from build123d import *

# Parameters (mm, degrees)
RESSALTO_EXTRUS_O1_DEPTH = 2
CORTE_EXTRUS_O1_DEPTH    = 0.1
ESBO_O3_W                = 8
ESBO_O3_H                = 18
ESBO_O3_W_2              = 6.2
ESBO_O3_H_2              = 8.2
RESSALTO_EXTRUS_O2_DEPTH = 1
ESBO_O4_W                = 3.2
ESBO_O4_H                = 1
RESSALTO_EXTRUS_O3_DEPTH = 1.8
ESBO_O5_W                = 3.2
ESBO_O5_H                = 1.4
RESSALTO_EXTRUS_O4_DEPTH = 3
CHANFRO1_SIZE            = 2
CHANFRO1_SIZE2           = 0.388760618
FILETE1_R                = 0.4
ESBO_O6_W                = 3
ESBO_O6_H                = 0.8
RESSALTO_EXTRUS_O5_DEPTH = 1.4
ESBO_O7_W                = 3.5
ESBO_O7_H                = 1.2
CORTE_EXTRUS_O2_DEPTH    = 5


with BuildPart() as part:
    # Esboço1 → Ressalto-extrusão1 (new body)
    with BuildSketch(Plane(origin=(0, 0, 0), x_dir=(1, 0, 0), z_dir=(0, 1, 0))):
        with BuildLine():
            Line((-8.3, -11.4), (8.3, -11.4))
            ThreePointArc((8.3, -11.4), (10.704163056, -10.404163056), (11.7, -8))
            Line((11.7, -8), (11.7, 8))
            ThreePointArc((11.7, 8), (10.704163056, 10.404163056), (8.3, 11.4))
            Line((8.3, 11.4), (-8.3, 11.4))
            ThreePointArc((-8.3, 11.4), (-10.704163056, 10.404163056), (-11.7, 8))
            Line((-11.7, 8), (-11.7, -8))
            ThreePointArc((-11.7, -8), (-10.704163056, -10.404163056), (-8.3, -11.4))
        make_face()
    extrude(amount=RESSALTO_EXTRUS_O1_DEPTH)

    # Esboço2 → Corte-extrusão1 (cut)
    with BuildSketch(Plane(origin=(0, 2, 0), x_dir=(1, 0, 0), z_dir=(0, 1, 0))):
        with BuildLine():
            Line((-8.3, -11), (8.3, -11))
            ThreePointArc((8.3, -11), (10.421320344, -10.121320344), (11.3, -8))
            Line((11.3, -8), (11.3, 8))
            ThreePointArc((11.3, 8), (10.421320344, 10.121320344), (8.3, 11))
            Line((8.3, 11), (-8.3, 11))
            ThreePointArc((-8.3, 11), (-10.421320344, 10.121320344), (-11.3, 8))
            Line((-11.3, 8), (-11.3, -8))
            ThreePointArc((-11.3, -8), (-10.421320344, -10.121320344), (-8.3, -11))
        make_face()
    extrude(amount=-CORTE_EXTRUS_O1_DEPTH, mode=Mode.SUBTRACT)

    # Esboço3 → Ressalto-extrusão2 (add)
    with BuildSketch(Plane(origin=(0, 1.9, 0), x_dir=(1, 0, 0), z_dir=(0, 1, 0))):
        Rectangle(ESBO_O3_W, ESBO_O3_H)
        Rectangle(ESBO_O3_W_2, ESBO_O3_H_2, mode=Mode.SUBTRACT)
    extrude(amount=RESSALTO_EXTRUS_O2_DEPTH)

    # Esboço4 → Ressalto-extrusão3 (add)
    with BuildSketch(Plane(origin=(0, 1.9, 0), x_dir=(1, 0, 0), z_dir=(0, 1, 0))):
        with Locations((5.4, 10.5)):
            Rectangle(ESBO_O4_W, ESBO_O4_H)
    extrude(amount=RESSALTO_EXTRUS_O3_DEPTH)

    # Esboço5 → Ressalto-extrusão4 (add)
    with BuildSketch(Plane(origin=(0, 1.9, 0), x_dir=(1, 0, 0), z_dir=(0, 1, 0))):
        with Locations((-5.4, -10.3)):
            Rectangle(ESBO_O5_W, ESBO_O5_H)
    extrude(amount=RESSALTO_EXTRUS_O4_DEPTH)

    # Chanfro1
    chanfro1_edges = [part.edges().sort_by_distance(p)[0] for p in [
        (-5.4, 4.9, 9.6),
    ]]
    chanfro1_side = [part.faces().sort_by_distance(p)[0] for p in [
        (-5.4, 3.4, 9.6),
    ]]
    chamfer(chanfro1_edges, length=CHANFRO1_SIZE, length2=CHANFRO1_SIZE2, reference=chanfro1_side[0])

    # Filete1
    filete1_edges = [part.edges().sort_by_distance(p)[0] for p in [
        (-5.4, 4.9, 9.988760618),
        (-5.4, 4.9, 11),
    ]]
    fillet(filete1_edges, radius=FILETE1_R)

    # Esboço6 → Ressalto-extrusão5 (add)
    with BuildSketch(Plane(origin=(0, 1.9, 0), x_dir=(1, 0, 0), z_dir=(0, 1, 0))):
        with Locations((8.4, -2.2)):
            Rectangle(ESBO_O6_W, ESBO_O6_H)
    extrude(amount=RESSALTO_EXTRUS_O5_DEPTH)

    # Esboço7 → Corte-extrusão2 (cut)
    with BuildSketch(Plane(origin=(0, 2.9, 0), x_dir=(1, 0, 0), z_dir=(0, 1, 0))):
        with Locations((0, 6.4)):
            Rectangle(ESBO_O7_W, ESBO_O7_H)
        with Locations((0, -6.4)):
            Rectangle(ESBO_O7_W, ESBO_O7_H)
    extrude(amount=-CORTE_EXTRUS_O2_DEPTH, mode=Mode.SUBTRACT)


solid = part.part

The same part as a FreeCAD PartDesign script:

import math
import FreeCAD as App
import Part
import Sketcher


def edges_at(feature, points):
    """Names of the edges that pass closest to the given points."""
    edges = feature.Shape.Edges
    near = lambda p: min(range(len(edges)), key=lambda i: edges[i].distToShape(Part.Vertex(*p))[0])
    return sorted({f"Edge{near(p) + 1}" for p in points})

doc = App.newDocument("Part")
body = doc.addObject("PartDesign::Body", "Body")

# Sketch on XZ plane
sketch1 = body.newObject("Sketcher::SketchObject", "Sketch")
sketch1.AttachmentSupport = (doc.getObject("XZ_Plane"), [""])
sketch1.MapMode = "FlatFace"
sketch1.addGeometry(Part.LineSegment(App.Vector(-8.3, 11.4, 0), App.Vector(8.3, 11.4, 0)), False)
sketch1.addGeometry(Part.ArcOfCircle(Part.Circle(App.Vector(8.3, 8, 0), App.Vector(0, 0, 1), 3.4), math.radians(0), math.radians(90)), False)
sketch1.addGeometry(Part.LineSegment(App.Vector(11.7, 8, 0), App.Vector(11.7, -8, 0)), False)
sketch1.addGeometry(Part.ArcOfCircle(Part.Circle(App.Vector(8.3, -8, 0), App.Vector(0, 0, 1), 3.4), math.radians(-90), math.radians(0)), False)
sketch1.addGeometry(Part.LineSegment(App.Vector(8.3, -11.4, 0), App.Vector(-8.3, -11.4, 0)), False)
sketch1.addGeometry(Part.ArcOfCircle(Part.Circle(App.Vector(-8.3, -8, 0), App.Vector(0, 0, 1), 3.4), math.radians(180), math.radians(270)), False)
sketch1.addGeometry(Part.LineSegment(App.Vector(-11.7, -8, 0), App.Vector(-11.7, 8, 0)), False)
sketch1.addGeometry(Part.ArcOfCircle(Part.Circle(App.Vector(-8.3, 8, 0), App.Vector(0, 0, 1), 3.4), math.radians(90), math.radians(180)), False)
sketch1.addConstraint(Sketcher.Constraint("Tangent", 0, 2, 1, 2))
sketch1.addConstraint(Sketcher.Constraint("Tangent", 1, 1, 2, 1))
sketch1.addConstraint(Sketcher.Constraint("Tangent", 2, 2, 3, 2))
sketch1.addConstraint(Sketcher.Constraint("Tangent", 3, 1, 4, 1))
sketch1.addConstraint(Sketcher.Constraint("Tangent", 4, 2, 5, 2))
sketch1.addConstraint(Sketcher.Constraint("Tangent", 5, 1, 6, 1))
sketch1.addConstraint(Sketcher.Constraint("Tangent", 6, 2, 7, 2))
sketch1.addConstraint(Sketcher.Constraint("Tangent", 7, 1, 0, 1))
sketch1.addConstraint(Sketcher.Constraint("Horizontal", 0))
sketch1.addConstraint(Sketcher.Constraint("Vertical", 2))
sketch1.addConstraint(Sketcher.Constraint("Horizontal", 4))
sketch1.addConstraint(Sketcher.Constraint("Vertical", 6))
sketch1.addConstraint(Sketcher.Constraint("Equal", 1, 3))
sketch1.addConstraint(Sketcher.Constraint("Equal", 3, 5))
sketch1.addConstraint(Sketcher.Constraint("Equal", 5, 7))
sketch1.addConstraint(Sketcher.Constraint("Symmetric", 1, 3, 5, 3, -1, 1))
sketch1.addConstraint(Sketcher.Constraint("Radius", 1, 3.4))
sketch1.addConstraint(Sketcher.Constraint("DistanceY", 2, 2, 2, 1, 16.0))
sketch1.addConstraint(Sketcher.Constraint("DistanceX", 0, 1, 0, 2, 16.6))
pad1 = body.newObject("PartDesign::Pad", "Pad")
pad1.Profile = sketch1
pad1.Length = 2
pad1.Reversed = True

# Sketch on XZ plane
sketch2 = body.newObject("Sketcher::SketchObject", "Sketch001")
sketch2.AttachmentSupport = (doc.getObject("XZ_Plane"), [""])
sketch2.MapMode = "FlatFace"
sketch2.AttachmentOffset = App.Placement(App.Vector(0, 0, -2), App.Rotation())
sketch2.addGeometry(Part.LineSegment(App.Vector(-8.3, 11, 0), App.Vector(8.3, 11, 0)), False)
sketch2.addGeometry(Part.ArcOfCircle(Part.Circle(App.Vector(8.3, 8, 0), App.Vector(0, 0, 1), 3), math.radians(0), math.radians(90)), False)
sketch2.addGeometry(Part.LineSegment(App.Vector(11.3, 8, 0), App.Vector(11.3, -8, 0)), False)
sketch2.addGeometry(Part.ArcOfCircle(Part.Circle(App.Vector(8.3, -8, 0), App.Vector(0, 0, 1), 3), math.radians(-90), math.radians(0)), False)
sketch2.addGeometry(Part.LineSegment(App.Vector(8.3, -11, 0), App.Vector(-8.3, -11, 0)), False)
sketch2.addGeometry(Part.ArcOfCircle(Part.Circle(App.Vector(-8.3, -8, 0), App.Vector(0, 0, 1), 3), math.radians(180), math.radians(270)), False)
sketch2.addGeometry(Part.LineSegment(App.Vector(-11.3, -8, 0), App.Vector(-11.3, 8, 0)), False)
sketch2.addGeometry(Part.ArcOfCircle(Part.Circle(App.Vector(-8.3, 8, 0), App.Vector(0, 0, 1), 3), math.radians(90), math.radians(180)), False)
sketch2.addConstraint(Sketcher.Constraint("Tangent", 0, 2, 1, 2))
sketch2.addConstraint(Sketcher.Constraint("Tangent", 1, 1, 2, 1))
sketch2.addConstraint(Sketcher.Constraint("Tangent", 2, 2, 3, 2))
sketch2.addConstraint(Sketcher.Constraint("Tangent", 3, 1, 4, 1))
sketch2.addConstraint(Sketcher.Constraint("Tangent", 4, 2, 5, 2))
sketch2.addConstraint(Sketcher.Constraint("Tangent", 5, 1, 6, 1))
sketch2.addConstraint(Sketcher.Constraint("Tangent", 6, 2, 7, 2))
sketch2.addConstraint(Sketcher.Constraint("Tangent", 7, 1, 0, 1))
sketch2.addConstraint(Sketcher.Constraint("Horizontal", 0))
sketch2.addConstraint(Sketcher.Constraint("Vertical", 2))
sketch2.addConstraint(Sketcher.Constraint("Horizontal", 4))
sketch2.addConstraint(Sketcher.Constraint("Vertical", 6))
sketch2.addConstraint(Sketcher.Constraint("Equal", 1, 3))
sketch2.addConstraint(Sketcher.Constraint("Equal", 3, 5))
sketch2.addConstraint(Sketcher.Constraint("Equal", 5, 7))
sketch2.addConstraint(Sketcher.Constraint("Symmetric", 1, 3, 5, 3, -1, 1))
sketch2.addConstraint(Sketcher.Constraint("Radius", 1, 3.0))
sketch2.addConstraint(Sketcher.Constraint("DistanceY", 2, 2, 2, 1, 16.0))
sketch2.addConstraint(Sketcher.Constraint("DistanceX", 0, 1, 0, 2, 16.6))
pocket1 = body.newObject("PartDesign::Pocket", "Pocket")
pocket1.Profile = sketch2
pocket1.Length = 0.1
pocket1.Reversed = True

# Sketch on XZ plane
sketch3 = body.newObject("Sketcher::SketchObject", "Sketch002")
sketch3.AttachmentSupport = (doc.getObject("XZ_Plane"), [""])
sketch3.MapMode = "FlatFace"
sketch3.AttachmentOffset = App.Placement(App.Vector(0, 0, -1.9), App.Rotation())
sketch3.addGeometry(Part.LineSegment(App.Vector(-4, -9, 0), App.Vector(-4, 9, 0)), False)
sketch3.addGeometry(Part.LineSegment(App.Vector(-4, 9, 0), App.Vector(4, 9, 0)), False)
sketch3.addGeometry(Part.LineSegment(App.Vector(4, 9, 0), App.Vector(4, -9, 0)), False)
sketch3.addGeometry(Part.LineSegment(App.Vector(4, -9, 0), App.Vector(-4, -9, 0)), False)
sketch3.addGeometry(Part.LineSegment(App.Vector(3, 4, 0), App.Vector(-3, 4, 0)), False)
sketch3.addGeometry(Part.LineSegment(App.Vector(-3, 4, 0), App.Vector(-3, -4, 0)), False)
sketch3.addGeometry(Part.LineSegment(App.Vector(-3, -4, 0), App.Vector(3, -4, 0)), False)
sketch3.addGeometry(Part.LineSegment(App.Vector(3, -4, 0), App.Vector(3, 4, 0)), False)
sketch3.addConstraint(Sketcher.Constraint("Coincident", 0, 2, 1, 1))
sketch3.addConstraint(Sketcher.Constraint("Coincident", 1, 2, 2, 1))
sketch3.addConstraint(Sketcher.Constraint("Coincident", 2, 2, 3, 1))
sketch3.addConstraint(Sketcher.Constraint("Coincident", 3, 2, 0, 1))
sketch3.addConstraint(Sketcher.Constraint("Coincident", 4, 2, 5, 1))
sketch3.addConstraint(Sketcher.Constraint("Coincident", 5, 2, 6, 1))
sketch3.addConstraint(Sketcher.Constraint("Coincident", 6, 2, 7, 1))
sketch3.addConstraint(Sketcher.Constraint("Coincident", 7, 2, 4, 1))
sketch3.addConstraint(Sketcher.Constraint("Vertical", 0))
sketch3.addConstraint(Sketcher.Constraint("Horizontal", 1))
sketch3.addConstraint(Sketcher.Constraint("Vertical", 2))
sketch3.addConstraint(Sketcher.Constraint("Horizontal", 3))
sketch3.addConstraint(Sketcher.Constraint("Horizontal", 4))
sketch3.addConstraint(Sketcher.Constraint("Vertical", 5))
sketch3.addConstraint(Sketcher.Constraint("Horizontal", 6))
sketch3.addConstraint(Sketcher.Constraint("Vertical", 7))
sketch3.addConstraint(Sketcher.Constraint("Symmetric", 0, 2, 2, 2, -1, 1))
sketch3.addConstraint(Sketcher.Constraint("Symmetric", 4, 2, 6, 2, -1, 1))
sketch3.addConstraint(Sketcher.Constraint("DistanceX", 1, 1, 1, 2, 8.0))
sketch3.addConstraint(Sketcher.Constraint("DistanceY", 0, 1, 0, 2, 18.0))
sketch3.addConstraint(Sketcher.Constraint("DistanceX", 4, 2, 4, 1, 6.2))
sketch3.addConstraint(Sketcher.Constraint("DistanceY", 5, 2, 5, 1, 8.2))
pad2 = body.newObject("PartDesign::Pad", "Pad001")
pad2.Profile = sketch3
pad2.Length = 1
pad2.Reversed = True

# Sketch on XZ plane
sketch4 = body.newObject("Sketcher::SketchObject", "Sketch003")
sketch4.AttachmentSupport = (doc.getObject("XZ_Plane"), [""])
sketch4.MapMode = "FlatFace"
sketch4.AttachmentOffset = App.Placement(App.Vector(0, 0, -1.9), App.Rotation())
sketch4.addGeometry(Part.LineSegment(App.Vector(3.8, -11, 0), App.Vector(3.8, -10, 0)), False)
sketch4.addGeometry(Part.LineSegment(App.Vector(3.8, -10, 0), App.Vector(7, -10, 0)), False)
sketch4.addGeometry(Part.LineSegment(App.Vector(7, -10, 0), App.Vector(7, -11, 0)), False)
sketch4.addGeometry(Part.LineSegment(App.Vector(7, -11, 0), App.Vector(3.8, -11, 0)), False)
sketch4.addConstraint(Sketcher.Constraint("Coincident", 0, 2, 1, 1))
sketch4.addConstraint(Sketcher.Constraint("Coincident", 1, 2, 2, 1))
sketch4.addConstraint(Sketcher.Constraint("Coincident", 2, 2, 3, 1))
sketch4.addConstraint(Sketcher.Constraint("Coincident", 3, 2, 0, 1))
sketch4.addConstraint(Sketcher.Constraint("Vertical", 0))
sketch4.addConstraint(Sketcher.Constraint("Horizontal", 1))
sketch4.addConstraint(Sketcher.Constraint("Vertical", 2))
sketch4.addConstraint(Sketcher.Constraint("Horizontal", 3))
sketch4.addConstraint(Sketcher.Constraint("DistanceY", 0, 1, 0, 2, 1.0))
sketch4.addConstraint(Sketcher.Constraint("DistanceX", 1, 1, 1, 2, 3.2))
sketch4.addConstraint(Sketcher.Constraint("DistanceY", 0, 2, -1, 1, 10.0))
sketch4.addConstraint(Sketcher.Constraint("DistanceX", -1, 1, 1, 2, 7.0))
pad3 = body.newObject("PartDesign::Pad", "Pad002")
pad3.Profile = sketch4
pad3.Length = 1.8
pad3.Reversed = True

# Sketch on XZ plane
sketch5 = body.newObject("Sketcher::SketchObject", "Sketch004")
sketch5.AttachmentSupport = (doc.getObject("XZ_Plane"), [""])
sketch5.MapMode = "FlatFace"
sketch5.AttachmentOffset = App.Placement(App.Vector(0, 0, -1.9), App.Rotation())
sketch5.addGeometry(Part.LineSegment(App.Vector(-7, 9.6, 0), App.Vector(-7, 11, 0)), False)
sketch5.addGeometry(Part.LineSegment(App.Vector(-7, 11, 0), App.Vector(-3.8, 11, 0)), False)
sketch5.addGeometry(Part.LineSegment(App.Vector(-3.8, 11, 0), App.Vector(-3.8, 9.6, 0)), False)
sketch5.addGeometry(Part.LineSegment(App.Vector(-3.8, 9.6, 0), App.Vector(-7, 9.6, 0)), False)
sketch5.addConstraint(Sketcher.Constraint("Coincident", 0, 2, 1, 1))
sketch5.addConstraint(Sketcher.Constraint("Coincident", 1, 2, 2, 1))
sketch5.addConstraint(Sketcher.Constraint("Coincident", 2, 2, 3, 1))
sketch5.addConstraint(Sketcher.Constraint("Coincident", 3, 2, 0, 1))
sketch5.addConstraint(Sketcher.Constraint("Vertical", 0))
sketch5.addConstraint(Sketcher.Constraint("Horizontal", 1))
sketch5.addConstraint(Sketcher.Constraint("Vertical", 2))
sketch5.addConstraint(Sketcher.Constraint("Horizontal", 3))
sketch5.addConstraint(Sketcher.Constraint("DistanceX", 1, 1, 1, 2, 3.2))
sketch5.addConstraint(Sketcher.Constraint("DistanceY", 0, 1, 0, 2, 1.4))
sketch5.addConstraint(Sketcher.Constraint("DistanceX", 0, 2, -1, 1, 7.0))
sketch5.addConstraint(Sketcher.Constraint("DistanceY", -1, 1, 0, 2, 11.0))
pad4 = body.newObject("PartDesign::Pad", "Pad003")
pad4.Profile = sketch5
pad4.Length = 3
pad4.Reversed = True
doc.recompute()

chamfer = body.newObject("PartDesign::Chamfer", "Chamfer")
chamfer.Base = (pad4, edges_at(pad4, [(-5.4, 4.9, 9.6)]))
chamfer.ChamferType = "Two distances"
chamfer.Size = 2
chamfer.Size2 = 0.388761
chamfer.FlipDirection = True
doc.recompute()

fillet = body.newObject("PartDesign::Fillet", "Fillet")
fillet.Base = (chamfer, edges_at(chamfer, [(-5.4, 4.9, 9.989), (-5.4, 4.9, 11)]))
fillet.Radius = 0.4

# Sketch on XZ plane
sketch6 = body.newObject("Sketcher::SketchObject", "Sketch005")
sketch6.AttachmentSupport = (doc.getObject("XZ_Plane"), [""])
sketch6.MapMode = "FlatFace"
sketch6.AttachmentOffset = App.Placement(App.Vector(0, 0, -1.9), App.Rotation())
sketch6.addGeometry(Part.LineSegment(App.Vector(6.9, 1.8, 0), App.Vector(6.9, 2.6, 0)), False)
sketch6.addGeometry(Part.LineSegment(App.Vector(6.9, 2.6, 0), App.Vector(9.9, 2.6, 0)), False)
sketch6.addGeometry(Part.LineSegment(App.Vector(9.9, 2.6, 0), App.Vector(9.9, 1.8, 0)), False)
sketch6.addGeometry(Part.LineSegment(App.Vector(9.9, 1.8, 0), App.Vector(6.9, 1.8, 0)), False)
sketch6.addConstraint(Sketcher.Constraint("Coincident", 0, 2, 1, 1))
sketch6.addConstraint(Sketcher.Constraint("Coincident", 1, 2, 2, 1))
sketch6.addConstraint(Sketcher.Constraint("Coincident", 2, 2, 3, 1))
sketch6.addConstraint(Sketcher.Constraint("Coincident", 3, 2, 0, 1))
sketch6.addConstraint(Sketcher.Constraint("Vertical", 0))
sketch6.addConstraint(Sketcher.Constraint("Horizontal", 1))
sketch6.addConstraint(Sketcher.Constraint("Vertical", 2))
sketch6.addConstraint(Sketcher.Constraint("Horizontal", 3))
sketch6.addConstraint(Sketcher.Constraint("DistanceX", 1, 1, 1, 2, 3.0))
sketch6.addConstraint(Sketcher.Constraint("DistanceY", 0, 1, 0, 2, 0.8))
sketch6.addConstraint(Sketcher.Constraint("DistanceX", -1, 1, 0, 2, 6.9))
sketch6.addConstraint(Sketcher.Constraint("DistanceY", -1, 1, 0, 2, 2.6))
pad5 = body.newObject("PartDesign::Pad", "Pad004")
pad5.Profile = sketch6
pad5.Length = 1.4
pad5.Reversed = True

# Sketch on XZ plane
sketch7 = body.newObject("Sketcher::SketchObject", "Sketch006")
sketch7.AttachmentSupport = (doc.getObject("XZ_Plane"), [""])
sketch7.MapMode = "FlatFace"
sketch7.AttachmentOffset = App.Placement(App.Vector(0, 0, -2.9), App.Rotation())
sketch7.addGeometry(Part.LineSegment(App.Vector(-1.8, -7, 0), App.Vector(-1.8, -5.8, 0)), False)
sketch7.addGeometry(Part.LineSegment(App.Vector(-1.8, -5.8, 0), App.Vector(1.8, -5.8, 0)), False)
sketch7.addGeometry(Part.LineSegment(App.Vector(1.8, -5.8, 0), App.Vector(1.8, -7, 0)), False)
sketch7.addGeometry(Part.LineSegment(App.Vector(1.8, -7, 0), App.Vector(-1.8, -7, 0)), False)
sketch7.addGeometry(Part.LineSegment(App.Vector(-1.8, 5.8, 0), App.Vector(-1.8, 7, 0)), False)
sketch7.addGeometry(Part.LineSegment(App.Vector(-1.8, 7, 0), App.Vector(1.8, 7, 0)), False)
sketch7.addGeometry(Part.LineSegment(App.Vector(1.8, 7, 0), App.Vector(1.8, 5.8, 0)), False)
sketch7.addGeometry(Part.LineSegment(App.Vector(1.8, 5.8, 0), App.Vector(-1.8, 5.8, 0)), False)
sketch7.addConstraint(Sketcher.Constraint("Coincident", 0, 2, 1, 1))
sketch7.addConstraint(Sketcher.Constraint("Coincident", 1, 2, 2, 1))
sketch7.addConstraint(Sketcher.Constraint("Coincident", 2, 2, 3, 1))
sketch7.addConstraint(Sketcher.Constraint("Coincident", 3, 2, 0, 1))
sketch7.addConstraint(Sketcher.Constraint("Coincident", 4, 2, 5, 1))
sketch7.addConstraint(Sketcher.Constraint("Coincident", 5, 2, 6, 1))
sketch7.addConstraint(Sketcher.Constraint("Coincident", 6, 2, 7, 1))
sketch7.addConstraint(Sketcher.Constraint("Coincident", 7, 2, 4, 1))
sketch7.addConstraint(Sketcher.Constraint("Vertical", 0))
sketch7.addConstraint(Sketcher.Constraint("Horizontal", 1))
sketch7.addConstraint(Sketcher.Constraint("Vertical", 2))
sketch7.addConstraint(Sketcher.Constraint("Horizontal", 3))
sketch7.addConstraint(Sketcher.Constraint("Vertical", 4))
sketch7.addConstraint(Sketcher.Constraint("Horizontal", 5))
sketch7.addConstraint(Sketcher.Constraint("Vertical", 6))
sketch7.addConstraint(Sketcher.Constraint("Horizontal", 7))
sketch7.addConstraint(Sketcher.Constraint("Symmetric", 2, 2, 4, 2, -1, 1))
sketch7.addConstraint(Sketcher.Constraint("Symmetric", 0, 2, 6, 2, -1, 1))
sketch7.addConstraint(Sketcher.Constraint("Vertical", 3, 2, 4, 2))
sketch7.addConstraint(Sketcher.Constraint("DistanceX", 1, 1, 1, 2, 3.5))
sketch7.addConstraint(Sketcher.Constraint("DistanceY", 0, 1, 0, 2, 1.2))
sketch7.addConstraint(Sketcher.Constraint("DistanceY", 2, 2, -1, 1, 7.0))
pocket2 = body.newObject("PartDesign::Pocket", "Pocket001")
pocket2.Profile = sketch7
pocket2.Length = 5
pocket2.Reversed = True

doc.recompute()
